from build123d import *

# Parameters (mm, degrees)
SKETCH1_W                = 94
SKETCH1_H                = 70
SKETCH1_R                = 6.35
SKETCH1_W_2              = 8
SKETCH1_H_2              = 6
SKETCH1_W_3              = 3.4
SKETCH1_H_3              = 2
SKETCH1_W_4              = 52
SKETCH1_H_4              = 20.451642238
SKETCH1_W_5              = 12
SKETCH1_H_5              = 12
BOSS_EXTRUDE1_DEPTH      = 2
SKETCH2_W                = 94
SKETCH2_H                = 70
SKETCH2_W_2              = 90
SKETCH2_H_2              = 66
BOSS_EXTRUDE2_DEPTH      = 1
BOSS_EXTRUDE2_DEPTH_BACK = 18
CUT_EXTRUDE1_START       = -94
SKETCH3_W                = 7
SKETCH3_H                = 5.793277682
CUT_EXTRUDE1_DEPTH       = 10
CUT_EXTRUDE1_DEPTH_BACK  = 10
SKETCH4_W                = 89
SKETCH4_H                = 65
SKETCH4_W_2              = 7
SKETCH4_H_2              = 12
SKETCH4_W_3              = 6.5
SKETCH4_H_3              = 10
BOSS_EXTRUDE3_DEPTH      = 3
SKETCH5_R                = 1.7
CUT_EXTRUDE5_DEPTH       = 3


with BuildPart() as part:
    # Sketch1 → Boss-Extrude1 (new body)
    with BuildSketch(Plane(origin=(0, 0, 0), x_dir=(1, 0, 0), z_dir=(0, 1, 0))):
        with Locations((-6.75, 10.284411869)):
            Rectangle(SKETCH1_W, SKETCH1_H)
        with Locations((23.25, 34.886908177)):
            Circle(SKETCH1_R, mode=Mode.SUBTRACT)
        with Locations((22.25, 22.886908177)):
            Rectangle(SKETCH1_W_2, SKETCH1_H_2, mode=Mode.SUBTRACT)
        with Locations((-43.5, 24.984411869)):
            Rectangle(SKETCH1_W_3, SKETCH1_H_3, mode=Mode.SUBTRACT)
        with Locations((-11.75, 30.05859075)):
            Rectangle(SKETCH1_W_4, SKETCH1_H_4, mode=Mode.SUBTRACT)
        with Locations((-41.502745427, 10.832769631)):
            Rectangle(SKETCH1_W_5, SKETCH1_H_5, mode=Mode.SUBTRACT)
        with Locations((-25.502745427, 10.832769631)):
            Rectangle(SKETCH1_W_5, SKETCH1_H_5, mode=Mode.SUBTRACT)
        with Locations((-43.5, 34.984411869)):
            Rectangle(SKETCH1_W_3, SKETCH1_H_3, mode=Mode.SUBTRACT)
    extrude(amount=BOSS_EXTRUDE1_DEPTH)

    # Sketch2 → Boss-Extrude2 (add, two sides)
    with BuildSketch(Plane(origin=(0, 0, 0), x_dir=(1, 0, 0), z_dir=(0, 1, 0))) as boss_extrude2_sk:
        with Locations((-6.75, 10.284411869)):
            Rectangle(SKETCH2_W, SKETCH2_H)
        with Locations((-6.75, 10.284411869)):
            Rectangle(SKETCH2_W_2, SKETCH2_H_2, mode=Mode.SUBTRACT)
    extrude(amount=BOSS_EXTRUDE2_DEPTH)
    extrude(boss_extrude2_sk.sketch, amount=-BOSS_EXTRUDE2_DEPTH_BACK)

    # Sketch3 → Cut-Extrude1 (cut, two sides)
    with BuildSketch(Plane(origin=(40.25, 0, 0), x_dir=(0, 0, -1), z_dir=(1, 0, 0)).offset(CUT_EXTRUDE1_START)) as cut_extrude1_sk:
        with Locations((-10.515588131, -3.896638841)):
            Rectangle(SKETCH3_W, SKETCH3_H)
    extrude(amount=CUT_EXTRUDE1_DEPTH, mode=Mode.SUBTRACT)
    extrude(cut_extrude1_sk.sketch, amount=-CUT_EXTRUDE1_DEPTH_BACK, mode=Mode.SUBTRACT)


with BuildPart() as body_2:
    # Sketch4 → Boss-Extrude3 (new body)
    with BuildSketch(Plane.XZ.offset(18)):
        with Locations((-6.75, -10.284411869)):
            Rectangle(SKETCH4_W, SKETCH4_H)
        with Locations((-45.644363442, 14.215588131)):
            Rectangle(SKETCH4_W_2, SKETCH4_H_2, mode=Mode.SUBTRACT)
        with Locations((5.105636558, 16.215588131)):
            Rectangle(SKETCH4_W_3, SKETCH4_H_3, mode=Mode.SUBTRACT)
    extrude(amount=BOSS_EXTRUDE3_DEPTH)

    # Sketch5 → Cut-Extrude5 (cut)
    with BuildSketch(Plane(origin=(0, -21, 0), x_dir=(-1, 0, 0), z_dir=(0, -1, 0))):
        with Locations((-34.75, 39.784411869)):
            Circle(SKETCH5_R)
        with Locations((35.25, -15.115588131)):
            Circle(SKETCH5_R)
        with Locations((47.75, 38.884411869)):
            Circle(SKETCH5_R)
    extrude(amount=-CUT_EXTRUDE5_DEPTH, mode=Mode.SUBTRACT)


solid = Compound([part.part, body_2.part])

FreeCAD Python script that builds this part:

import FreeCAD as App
import Part
import Sketcher

V = App.Vector


def add_polygon(sketch, points):
    """Adds a closed chain of lines whose ends are joined by coincident constraints."""
    first, n = sketch.GeometryCount, len(points)
    for a, b in zip(points, points[1:] + points[:1]):
        sketch.addGeometry(Part.LineSegment(App.Vector(*a, 0), App.Vector(*b, 0)), False)
    for i in range(n):
        sketch.addConstraint(Sketcher.Constraint("Coincident", first + i, 2, first + (i + 1) % n, 1))

doc = App.newDocument("Part")
params = doc.addObject("Spreadsheet::Sheet", "Params")
for row, (alias, value) in enumerate([
    ("sketch1_diameter", "12.7 mm"),
    ("sketch1_width", "94 mm"),
    ("sketch1_width2", "12 mm"),
    ("sketch1_width3", "8 mm"),
    ("sketch1_width4", "52 mm"),
    ("pad1_length", "2 mm"),
    ("sketch2_width", "94 mm"),
    ("sketch2_width2", "90 mm"),
    ("sketch2_height", "70 mm"),
    ("sketch2_height2", "66 mm"),
    ("pad2_length", "1 mm"),
    ("pad2_length2", "18 mm"),
    ("sketch3_height", "7 mm"),
    ("pocket1_length", "10 mm"),
    ("pocket1_length2", "10 mm"),
    ("sketch4_width", "89 mm"),
    ("sketch4_width2", "7 mm"),
    ("sketch4_height", "65 mm"),
    ("sketch4_height2", "12 mm"),
    ("sketch4_height3", "10 mm"),
    ("pad3_length", "3 mm"),
    ("sketch5_diameter", "3.4 mm"),
    ("pocket2_length", "3 mm"),
], start=1):
    params.set(f"A{row}", alias)
    params.set(f"B{row}", "=" + value)
    params.setAlias(f"B{row}", alias)

body = doc.addObject("PartDesign::Body", "Body")

# Sketch on XZ plane
sketch1 = doc.addObject("Sketcher::SketchObject", "Sketch")
body.addObject(sketch1)
sketch1.AttachmentSupport = (doc.XZ_Plane, [""])
sketch1.MapMode = "FlatFace"
add_polygon(sketch1, [(-53.8, -45.3), (-53.8, 24.7), (40.2, 24.7), (40.2, -45.3)])  # lines 0-3
add_polygon(sketch1, [(-35.5, -4.8), (-47.5, -4.8), (-47.5, -16.8), (-35.5, -16.8)])  # lines 4-7
add_polygon(sketch1, [(-19.5, -4.8), (-31.5, -4.8), (-31.5, -16.8), (-19.5, -16.8)])  # lines 8-11
add_polygon(sketch1, [(26.2, -19.9), (18.2, -19.9), (18.2, -25.9), (26.2, -25.9)])  # lines 12-15
add_polygon(sketch1, [(-41.8, -24), (-45.2, -24), (-45.2, -26), (-41.8, -26)])  # lines 16-19
add_polygon(sketch1, [(14.2, -19.8), (-37.8, -19.8), (-37.8, -40.3), (14.2, -40.3)])  # lines 20-23
add_polygon(sketch1, [(-41.8, -34), (-45.2, -34), (-45.2, -36), (-41.8, -36)])  # lines 24-27
sketch1.addGeometry(Part.Circle(V(23.2, -34.9, 0), V(0, 0, 1), 6.3), False)  # 28
sketch1.addConstraint(Sketcher.Constraint("Vertical", 0))
sketch1.addConstraint(Sketcher.Constraint("Horizontal", 1))
sketch1.addConstraint(Sketcher.Constraint("Vertical", 2))
sketch1.addConstraint(Sketcher.Constraint("Horizontal", 3))
sketch1.addConstraint(Sketcher.Constraint("Horizontal", 4))
sketch1.addConstraint(Sketcher.Constraint("Vertical", 5))
sketch1.addConstraint(Sketcher.Constraint("Horizontal", 6))
sketch1.addConstraint(Sketcher.Constraint("Vertical", 7))
sketch1.addConstraint(Sketcher.Constraint("Horizontal", 8))
sketch1.addConstraint(Sketcher.Constraint("Vertical", 9))
sketch1.addConstraint(Sketcher.Constraint("Horizontal", 10))
sketch1.addConstraint(Sketcher.Constraint("Vertical", 11))
sketch1.addConstraint(Sketcher.Constraint("Horizontal", 12))
sketch1.addConstraint(Sketcher.Constraint("Vertical", 13))
sketch1.addConstraint(Sketcher.Constraint("Horizontal", 14))
sketch1.addConstraint(Sketcher.Constraint("Vertical", 15))
sketch1.addConstraint(Sketcher.Constraint("Horizontal", 16))
sketch1.addConstraint(Sketcher.Constraint("Vertical", 17))
sketch1.addConstraint(Sketcher.Constraint("Horizontal", 18))
sketch1.addConstraint(Sketcher.Constraint("Vertical", 19))
sketch1.addConstraint(Sketcher.Constraint("Horizontal", 20))
sketch1.addConstraint(Sketcher.Constraint("Vertical", 21))
sketch1.addConstraint(Sketcher.Constraint("Horizontal", 22))
sketch1.addConstraint(Sketcher.Constraint("Vertical", 23))
sketch1.addConstraint(Sketcher.Constraint("Horizontal", 24))
sketch1.addConstraint(Sketcher.Constraint("Vertical", 25))
sketch1.addConstraint(Sketcher.Constraint("Horizontal", 26))
sketch1.addConstraint(Sketcher.Constraint("Vertical", 27))
sketch1.addConstraint(Sketcher.Constraint("Horizontal", 7, 2, 8, 2))
sketch1.addConstraint(Sketcher.Constraint("Horizontal", 6, 2, 9, 2))
sketch1.addConstraint(Sketcher.Constraint("Vertical", 17, 2, 24, 2))
sketch1.addConstraint(Sketcher.Constraint("Vertical", 19, 2, 26, 2))
sketch1.addConstraint(Sketcher.Constraint("Equal", 6, 8))
sketch1.addConstraint(Sketcher.Constraint("Equal", 10, 5))
sketch1.addConstraint(Sketcher.Constraint("Equal", 19, 25))
sketch1.addConstraint(Sketcher.Constraint("Diameter", 28, 12.7))
sketch1.addConstraint(Sketcher.Constraint("DistanceX", 1, 1, 1, 2, 94.0))
sketch1.addConstraint(Sketcher.Constraint("DistanceX", 4, 2, 4, 1, 12.0))
sketch1.addConstraint(Sketcher.Constraint("DistanceX", 12, 2, 12, 1, 8.0))
sketch1.addConstraint(Sketcher.Constraint("DistanceX", 20, 2, 20, 1, 52.0))
sketch1.addConstraint(Sketcher.Constraint("DistanceY", 0, 1, 0, 2, 70.0))
sketch1.addConstraint(Sketcher.Constraint("DistanceY", 13, 2, 13, 1, 6.0))
sketch1.addConstraint(Sketcher.Constraint("DistanceY", 17, 2, 17, 1, 2.0))
sketch1.addConstraint(Sketcher.Constraint("DistanceX", 16, 2, 16, 1, 3.4))
sketch1.addConstraint(Sketcher.Constraint("DistanceX", 0, 2, 28, 3, 77.0))
sketch1.addConstraint(Sketcher.Constraint("DistanceX", 7, 2, 8, 2, 4.0))
sketch1.addConstraint(Sketcher.Constraint("DistanceX", 12, 2, 28, 3, 5.0))
sketch1.addConstraint(Sketcher.Constraint("DistanceY", 28, 3, 12, 2, 15.0))
sketch1.addConstraint(Sketcher.Constraint("DistanceY", 20, 2, 6, 2, 3.0))
sketch1.addConstraint(Sketcher.Constraint("DistanceX", 3, 2, 21, 2, 16.0))
sketch1.addConstraint(Sketcher.Constraint("DistanceY", 3, 2, 21, 2, 5.0))
sketch1.addConstraint(Sketcher.Constraint("DistanceY", 24, 2, 17, 2, 8.0))
sketch1.addConstraint(Sketcher.Constraint("DistanceX", 16, 2, -1, 1, 45.2))
sketch1.addConstraint(Sketcher.Constraint("DistanceY", 3, 2, 17, 2, 19.3))
sketch1.addConstraint(Sketcher.Constraint("DistanceX", -1, 1, 28, 3, 23.25))
sketch1.addConstraint(Sketcher.Constraint("DistanceY", 21, 2, 21, 1, 20.451642))
sketch1.addConstraint(Sketcher.Constraint("DistanceY", 28, 3, -1, 1, 34.886908))
sketch1.addConstraint(Sketcher.Constraint("DistanceY", -1, 1, 0, 2, 24.715588))
sketch1.addConstraint(Sketcher.Constraint("DistanceX", 4, 2, -1, 1, 47.502745))
sketch1.setExpression("Constraints[63]", "Params.sketch1_diameter")
sketch1.setExpression("Constraints[64]", "Params.sketch1_width")
sketch1.setExpression("Constraints[65]", "Params.sketch1_width2")
sketch1.setExpression("Constraints[66]", "Params.sketch1_width3")
sketch1.setExpression("Constraints[67]", "Params.sketch1_width4")
pad1 = doc.addObject("PartDesign::Pad", "Pad")
body.addObject(pad1)
pad1.Profile = sketch1
pad1.setExpression("Length", "Params.pad1_length")
pad1.Reversed = True

# Sketch on XZ plane
sketch2 = doc.addObject("Sketcher::SketchObject", "Sketch001")
body.addObject(sketch2)
sketch2.AttachmentSupport = (doc.XZ_Plane, [""])
sketch2.MapMode = "FlatFace"
add_polygon(sketch2, [(-54, -45), (-54, 25), (40, 25), (40, -45)])  # lines 0-3
add_polygon(sketch2, [(38, 23), (-52, 23), (-52, -43), (38, -43)])  # lines 4-7
sketch2.addConstraint(Sketcher.Constraint("Vertical", 0))
sketch2.addConstraint(Sketcher.Constraint("Horizontal", 1))
sketch2.addConstraint(Sketcher.Constraint("Vertical", 2))
sketch2.addConstraint(Sketcher.Constraint("Horizontal", 3))
sketch2.addConstraint(Sketcher.Constraint("Horizontal", 4))
sketch2.addConstraint(Sketcher.Constraint("Vertical", 5))
sketch2.addConstraint(Sketcher.Constraint("Horizontal", 6))
sketch2.addConstraint(Sketcher.Constraint("Vertical", 7))
sketch2.addConstraint(Sketcher.Constraint("DistanceX", 1, 1, 1, 2, 94.0))
sketch2.addConstraint(Sketcher.Constraint("DistanceX", 4, 2, 4, 1, 90.0))
sketch2.addConstraint(Sketcher.Constraint("DistanceY", 0, 1, 0, 2, 70.0))
sketch2.addConstraint(Sketcher.Constraint("DistanceY", 5, 2, 5, 1, 66.0))
sketch2.addConstraint(Sketcher.Constraint("DistanceX", 0, 2, 4, 2, 2.0))
sketch2.addConstraint(Sketcher.Constraint("DistanceY", 4, 2, 0, 2, 2.0))
sketch2.addConstraint(Sketcher.Constraint("DistanceX", 0, 2, -1, 1, 53.75))
sketch2.addConstraint(Sketcher.Constraint("DistanceY", -1, 1, 0, 2, 24.715588))
sketch2.setExpression("Constraints[16]", "Params.sketch2_width")
sketch2.setExpression("Constraints[17]", "Params.sketch2_width2")
sketch2.setExpression("Constraints[18]", "Params.sketch2_height")
sketch2.setExpression("Constraints[19]", "Params.sketch2_height2")
pad2 = doc.addObject("PartDesign::Pad", "Pad001")
body.addObject(pad2)
pad2.Profile = sketch2
pad2.Type = "TwoLengths"
pad2.setExpression("Length", "Params.pad2_length")
pad2.setExpression("Length2", "Params.pad2_length2")
pad2.Reversed = True

# Sketch on YZ plane
sketch3 = doc.addObject("Sketcher::SketchObject", "Sketch002")
body.addObject(sketch3)
sketch3.AttachmentSupport = (doc.YZ_Plane, [""])
sketch3.MapMode = "FlatFace"
sketch3.AttachmentOffset = App.Placement(V(0, 0, -53.75), App.Rotation())
add_polygon(sketch3, [(-1, 14), (-7, 14), (-7, 7), (-1, 7)])  # lines 0-3
sketch3.addConstraint(Sketcher.Constraint("Horizontal", 0))
sketch3.addConstraint(Sketcher.Constraint("Vertical", 1))
sketch3.addConstraint(Sketcher.Constraint("Horizontal", 2))
sketch3.addConstraint(Sketcher.Constraint("Vertical", 3))
sketch3.addConstraint(Sketcher.Constraint("DistanceY", 1, 2, 1, 1, 7.0))
sketch3.addConstraint(Sketcher.Constraint("DistanceX", 2, 2, -1, 1, 1.0))
sketch3.addConstraint(Sketcher.Constraint("DistanceX", 0, 2, 0, 1, 5.793278))
sketch3.addConstraint(Sketcher.Constraint("DistanceY", -1, 1, 0, 2, 14.015588))
sketch3.setExpression("Constraints[8]", "Params.sketch3_height")
pocket1 = doc.addObject("PartDesign::Pocket", "Pocket")
body.addObject(pocket1)
pocket1.Profile = sketch3
pocket1.Type = "TwoLengths"
pocket1.setExpression("Length", "Params.pocket1_length")
pocket1.setExpression("Length2", "Params.pocket1_length2")
pocket1.Reversed = True
body2 = doc.addObject("PartDesign::Body", "Body001")

# Sketch on XZ plane
sketch4 = doc.addObject("Sketcher::SketchObject", "Sketch003")
body2.addObject(sketch4)
sketch4.AttachmentSupport = (doc.getObject("XZ_Plane001"), [""])
sketch4.MapMode = "FlatFace"
sketch4.AttachmentOffset = App.Placement(V(0, 0, 18), App.Rotation())
add_polygon(sketch4, [(-51, 22), (-51, -43), (38, -43), (38, 22)])  # lines 0-3
add_polygon(sketch4, [(-42, 8), (-49, 8), (-49, 20), (-42, 20)])  # lines 4-7
add_polygon(sketch4, [(8, 11), (2, 11), (2, 21), (8, 21)])  # lines 8-11
sketch4.addConstraint(Sketcher.Constraint("Vertical", 0))
sketch4.addConstraint(Sketcher.Constraint("Horizontal", 1))
sketch4.addConstraint(Sketcher.Constraint("Vertical", 2))
sketch4.addConstraint(Sketcher.Constraint("Horizontal", 3))
sketch4.addConstraint(Sketcher.Constraint("Horizontal", 4))
sketch4.addConstraint(Sketcher.Constraint("Vertical", 5))
sketch4.addConstraint(Sketcher.Constraint("Horizontal", 6))
sketch4.addConstraint(Sketcher.Constraint("Vertical", 7))
sketch4.addConstraint(Sketcher.Constraint("Horizontal", 8))
sketch4.addConstraint(Sketcher.Constraint("Vertical", 9))
sketch4.addConstraint(Sketcher.Constraint("Horizontal", 10))
sketch4.addConstraint(Sketcher.Constraint("Vertical", 11))
sketch4.addConstraint(Sketcher.Constraint("DistanceX", 1, 1, 1, 2, 89.0))
sketch4.addConstraint(Sketcher.Constraint("DistanceX", 4, 2, 4, 1, 7.0))
sketch4.addConstraint(Sketcher.Constraint("DistanceY", 0, 2, 0, 1, 65.0))
sketch4.addConstraint(Sketcher.Constraint("DistanceY", 5, 1, 5, 2, 12.0))
sketch4.addConstraint(Sketcher.Constraint("DistanceY", 9, 1, 9, 2, 10.0))
sketch4.addConstraint(Sketcher.Constraint("DistanceX", 8, 2, 8, 1, 6.5))
sketch4.addConstraint(Sketcher.Constraint("DistanceY", 4, 2, 3, 2, 14.0))
sketch4.addConstraint(Sketcher.Constraint("DistanceY", 8, 2, 2, 2, 11.0))
sketch4.addConstraint(Sketcher.Constraint("DistanceX", 7, 2, 8, 2, 44.0))
sketch4.addConstraint(Sketcher.Constraint("DistanceX", 0, 2, -1, 1, 51.25))
sketch4.addConstraint(Sketcher.Constraint("DistanceY", 0, 2, -1, 1, 42.784412))
sketch4.addConstraint(Sketcher.Constraint("DistanceX", 4, 2, -1, 1, 49.144363))
sketch4.setExpression("Constraints[24]", "Params.sketch4_width")
sketch4.setExpression("Constraints[25]", "Params.sketch4_width2")
sketch4.setExpression("Constraints[26]", "Params.sketch4_height")
sketch4.setExpression("Constraints[27]", "Params.sketch4_height2")
sketch4.setExpression("Constraints[28]", "Params.sketch4_height3")
pad3 = doc.addObject("PartDesign::Pad", "Pad002")
body2.addObject(pad3)
pad3.Profile = sketch4
pad3.setExpression("Length", "Params.pad3_length")

# Sketch on XZ plane
sketch5 = doc.addObject("Sketcher::SketchObject", "Sketch004")
body2.addObject(sketch5)
sketch5.AttachmentSupport = (doc.getObject("XZ_Plane001"), [""])
sketch5.MapMode = "FlatFace"
sketch5.AttachmentOffset = App.Placement(V(0, 0, 21), App.Rotation())
sketch5.addGeometry(Part.Circle(V(34.8, -39.8, 0), V(0, 0, 1), 1.7), False)
sketch5.addGeometry(Part.Circle(V(-35.2, 15.1, 0), V(0, 0, 1), 1.7), False)
sketch5.addGeometry(Part.Circle(V(-47.8, -38.9, 0), V(0, 0, 1), 1.7), False)
sketch5.addConstraint(Sketcher.Constraint("Equal", 0, 1))
sketch5.addConstraint(Sketcher.Constraint("Equal", 1, 2))
sketch5.addConstraint(Sketcher.Constraint("Diameter", 0, 3.4))
sketch5.addConstraint(Sketcher.Constraint("DistanceX", 1, 3, 0, 3, 70.0))
sketch5.addConstraint(Sketcher.Constraint("DistanceY", 2, 3, 1, 3, 54.0))
sketch5.addConstraint(Sketcher.Constraint("DistanceY", 0, 3, 1, 3, 54.9))
sketch5.addConstraint(Sketcher.Constraint("DistanceX", 2, 3, 1, 3, 12.5))
sketch5.addConstraint(Sketcher.Constraint("DistanceX", -1, 1, 0, 3, 34.75))
sketch5.addConstraint(Sketcher.Constraint("DistanceY", 0, 3, -1, 1, 39.784412))
sketch5.setExpression("Constraints[2]", "Params.sketch5_diameter")
pocket2 = doc.addObject("PartDesign::Pocket", "Pocket001")
body2.addObject(pocket2)
pocket2.Profile = sketch5
pocket2.setExpression("Length", "Params.pocket2_length")

doc.recompute()
